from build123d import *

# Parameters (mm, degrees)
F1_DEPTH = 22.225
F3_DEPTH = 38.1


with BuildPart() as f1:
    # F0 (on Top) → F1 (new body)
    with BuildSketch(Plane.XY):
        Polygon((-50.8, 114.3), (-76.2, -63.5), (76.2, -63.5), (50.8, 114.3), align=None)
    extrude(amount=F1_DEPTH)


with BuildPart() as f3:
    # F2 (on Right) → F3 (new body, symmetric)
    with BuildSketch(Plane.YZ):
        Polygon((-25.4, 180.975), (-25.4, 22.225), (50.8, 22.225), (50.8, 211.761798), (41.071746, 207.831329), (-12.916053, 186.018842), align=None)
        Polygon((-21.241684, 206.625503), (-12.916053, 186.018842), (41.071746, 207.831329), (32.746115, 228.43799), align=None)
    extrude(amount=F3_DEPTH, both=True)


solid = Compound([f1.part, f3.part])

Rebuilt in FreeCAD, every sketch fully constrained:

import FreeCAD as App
import Part
import Sketcher
from FreeCAD import Vector
Q = App.Units.Quantity

doc = App.newDocument("Part")
body = doc.addObject("PartDesign::Body", "Body")

# Sketch on XY plane
sketch1 = doc.addObject("Sketcher::SketchObject", "Sketch")
body.addObject(sketch1)
sketch1.AttachmentSupport = (doc.XY_Plane, [""])
sketch1.MapMode = "FlatFace"
sketch1.addGeometry([
    Part.LineSegment(Vector(-51, 114, 0), Vector(-76, -64, 0)),
    Part.LineSegment(Vector(-76, -64, 0), Vector(76, -64, 0)),
    Part.LineSegment(Vector(76, -64, 0), Vector(51, 114, 0)),
    Part.LineSegment(Vector(51, 114, 0), Vector(-51, 114, 0)),
], False)
sketch1.addConstraint([
    Sketcher.Constraint("Coincident", 0, 2, 1, 1),
    Sketcher.Constraint("Coincident", 1, 2, 2, 1),
    Sketcher.Constraint("Coincident", 2, 2, 3, 1),
    Sketcher.Constraint("Coincident", 3, 2, 0, 1),
    Sketcher.Constraint("Horizontal", 1),
    Sketcher.Constraint("Horizontal", 3),
    Sketcher.Constraint("Equal", 0, 2),
    Sketcher.Constraint("DistanceX", 1, 1, 1, 2, Q("6 in")),
    Sketcher.Constraint("DistanceX", 3, 2, 3, 1, Q("4 in")),
    Sketcher.Constraint("DistanceX", 0, 2, -1, 1, Q("3 in")),
    Sketcher.Constraint("DistanceY", 1, 2, 2, 2, Q("7 in")),
    Sketcher.Constraint("DistanceY", 0, 2, -1, 1, Q("2.5 in")),
])
pad1 = doc.addObject("PartDesign::Pad", "Pad")
body.addObject(pad1)
pad1.Profile = sketch1
pad1.Length = Q("0.875 in")
body2 = doc.addObject("PartDesign::Body", "Body001")

# Sketch on YZ plane
sketch2 = doc.addObject("Sketcher::SketchObject", "Sketch001")
body2.addObject(sketch2)
sketch2.AttachmentSupport = (doc.getObject("YZ_Plane001"), [""])
sketch2.MapMode = "FlatFace"
sketch2.addGeometry([
    Part.LineSegment(Vector(-25, 181, 0), Vector(-25, 22, 0)),  # 0
    Part.LineSegment(Vector(-25, 22, 0), Vector(51, 22, 0)),  # 1
    Part.LineSegment(Vector(51, 22, 0), Vector(51, 212, 0)),  # 2
    Part.LineSegment(Vector(51, 212, 0), Vector(41, 208, 0)),  # 3
    Part.LineSegment(Vector(41, 208, 0), Vector(33, 228, 0)),  # 4
    Part.LineSegment(Vector(33, 228, 0), Vector(-21, 207, 0)),  # 5
    Part.LineSegment(Vector(-21, 207, 0), Vector(-13, 186, 0)),  # 6
    Part.LineSegment(Vector(-13, 186, 0), Vector(-25, 181, 0)),  # 7
], False)
sketch2.addConstraint([
    Sketcher.Constraint("Coincident", 0, 2, 1, 1),
    Sketcher.Constraint("Coincident", 1, 2, 2, 1),
    Sketcher.Constraint("Coincident", 2, 2, 3, 1),
    Sketcher.Constraint("Coincident", 3, 2, 4, 1),
    Sketcher.Constraint("Coincident", 4, 2, 5, 1),
    Sketcher.Constraint("Coincident", 5, 2, 6, 1),
    Sketcher.Constraint("Coincident", 6, 2, 7, 1),
    Sketcher.Constraint("Coincident", 7, 2, 0, 1),
    Sketcher.Constraint("Vertical", 0),
    Sketcher.Constraint("Horizontal", 1),
    Sketcher.Constraint("Vertical", 2),
    Sketcher.Constraint("Perpendicular", 3, 4),
    Sketcher.Constraint("Perpendicular", 4, 5),
    Sketcher.Constraint("Perpendicular", 5, 6),
    Sketcher.Constraint("Perpendicular", 6, 7),
    Sketcher.Constraint("Equal", 4, 6),
    Sketcher.Constraint("DistanceX", 1, 1, 1, 2, Q("3 in")),
    Sketcher.Constraint("DistanceX", 0, 2, -1, 1, Q("1 in")),
    Sketcher.Constraint("Angle", 3, Q("-158.000004 deg")),
    Sketcher.Constraint("DistanceY", 0, 2, 0, 1, Q("6.25 in")),
    Sketcher.Constraint("Distance", 4, Q("0.875 in")),
    Sketcher.Constraint("DistanceY", -1, 1, 0, 2, Q("0.875 in")),
    Sketcher.Constraint("DistanceX", 5, 2, 4, 2, 53.987799),
    Sketcher.Constraint("Distance", 3, 10.49226),
])
pad2 = doc.addObject("PartDesign::Pad", "Pad001")
body2.addObject(pad2)
pad2.Profile = sketch2
pad2.Length = Q("3 in")
pad2.Midplane = True

doc.recompute()
